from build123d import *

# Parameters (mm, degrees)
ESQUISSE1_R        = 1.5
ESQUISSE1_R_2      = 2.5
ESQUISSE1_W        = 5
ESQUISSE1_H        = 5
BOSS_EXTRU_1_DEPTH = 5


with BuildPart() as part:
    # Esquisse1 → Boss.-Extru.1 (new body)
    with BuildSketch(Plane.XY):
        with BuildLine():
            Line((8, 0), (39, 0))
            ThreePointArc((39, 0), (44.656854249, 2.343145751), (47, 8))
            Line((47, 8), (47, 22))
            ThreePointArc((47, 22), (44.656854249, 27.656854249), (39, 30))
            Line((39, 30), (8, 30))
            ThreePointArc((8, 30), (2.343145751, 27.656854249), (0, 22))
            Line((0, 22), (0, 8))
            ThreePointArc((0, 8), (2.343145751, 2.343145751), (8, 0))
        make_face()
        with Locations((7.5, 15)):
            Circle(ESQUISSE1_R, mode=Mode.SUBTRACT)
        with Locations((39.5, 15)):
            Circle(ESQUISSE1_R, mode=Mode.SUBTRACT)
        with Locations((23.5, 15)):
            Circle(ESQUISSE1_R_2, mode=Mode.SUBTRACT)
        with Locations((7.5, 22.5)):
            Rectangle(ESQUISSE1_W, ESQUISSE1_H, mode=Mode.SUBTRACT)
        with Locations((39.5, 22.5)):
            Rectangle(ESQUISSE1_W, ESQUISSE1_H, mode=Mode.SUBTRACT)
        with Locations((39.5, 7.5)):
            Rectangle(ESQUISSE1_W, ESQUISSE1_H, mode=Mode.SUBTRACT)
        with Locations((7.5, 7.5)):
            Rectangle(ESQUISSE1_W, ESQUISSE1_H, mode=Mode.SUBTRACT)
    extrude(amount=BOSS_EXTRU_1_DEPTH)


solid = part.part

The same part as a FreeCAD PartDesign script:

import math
import FreeCAD as App
import Part
import Sketcher
Q = App.Units.Quantity


def add_polygon(sketch, points):
    """Adds a closed chain of lines whose ends are joined by coincident constraints."""
    first, n = sketch.GeometryCount, len(points)
    for a, b in zip(points, points[1:] + points[:1]):
        sketch.addGeometry(Part.LineSegment(App.Vector(*a, 0), App.Vector(*b, 0)), False)
    for i in range(n):
        sketch.addConstraint(Sketcher.Constraint("Coincident", first + i, 2, first + (i + 1) % n, 1))

doc = App.newDocument("Part")
body = doc.addObject("PartDesign::Body", "Body")

sketch1 = body.newObject("Sketcher::SketchObject", "Sketch")
sketch1.AttachmentSupport = (doc.getObject("XY_Plane"), [""])
sketch1.MapMode = "FlatFace"
sketch1.addGeometry(Part.LineSegment(App.Vector(8, 0, 0), App.Vector(39, 0, 0)), False)
sketch1.addGeometry(Part.ArcOfCircle(Part.Circle(App.Vector(39, 8, 0), App.Vector(0, 0, 1), 8), math.radians(-90), math.radians(0)), False)
sketch1.addGeometry(Part.LineSegment(App.Vector(47, 8, 0), App.Vector(47, 22, 0)), False)
sketch1.addGeometry(Part.ArcOfCircle(Part.Circle(App.Vector(39, 22, 0), App.Vector(0, 0, 1), 8), math.radians(0), math.radians(90)), False)
sketch1.addGeometry(Part.LineSegment(App.Vector(39, 30, 0), App.Vector(8, 30, 0)), False)
sketch1.addGeometry(Part.ArcOfCircle(Part.Circle(App.Vector(8, 22, 0), App.Vector(0, 0, 1), 8), math.radians(90), math.radians(180)), False)
sketch1.addGeometry(Part.LineSegment(App.Vector(0, 22, 0), App.Vector(0, 8, 0)), False)
sketch1.addGeometry(Part.ArcOfCircle(Part.Circle(App.Vector(8, 8, 0), App.Vector(0, 0, 1), 8), math.radians(-180), math.radians(-90)), False)
add_polygon(sketch1, [(10, 5), (5, 5), (5, 10), (10, 10)])
add_polygon(sketch1, [(42, 5), (37, 5), (37, 10), (42, 10)])
sketch1.addGeometry(Part.Circle(App.Vector(7.5, 15, 0), App.Vector(0, 0, 1), 1.5), False)
add_polygon(sketch1, [(10, 20), (5, 20), (5, 25), (10, 25)])
sketch1.addGeometry(Part.Circle(App.Vector(23.5, 15, 0), App.Vector(0, 0, 1), 2.5), False)
sketch1.addGeometry(Part.Circle(App.Vector(39.5, 15, 0), App.Vector(0, 0, 1), 1.5), False)
add_polygon(sketch1, [(42, 20), (37, 20), (37, 25), (42, 25)])
sketch1.addConstraint(Sketcher.Constraint("Tangent", 0, 2, 1, 1))
sketch1.addConstraint(Sketcher.Constraint("Tangent", 1, 2, 2, 1))
sketch1.addConstraint(Sketcher.Constraint("Tangent", 2, 2, 3, 1))
sketch1.addConstraint(Sketcher.Constraint("Tangent", 3, 2, 4, 1))
sketch1.addConstraint(Sketcher.Constraint("Tangent", 4, 2, 5, 1))
sketch1.addConstraint(Sketcher.Constraint("Tangent", 5, 2, 6, 1))
sketch1.addConstraint(Sketcher.Constraint("Tangent", 6, 2, 7, 1))
sketch1.addConstraint(Sketcher.Constraint("Tangent", 7, 2, 0, 1))
sketch1.addConstraint(Sketcher.Constraint("Horizontal", 0))
sketch1.addConstraint(Sketcher.Constraint("Vertical", 2))
sketch1.addConstraint(Sketcher.Constraint("Horizontal", 4))
sketch1.addConstraint(Sketcher.Constraint("Vertical", 6))
sketch1.addConstraint(Sketcher.Constraint("Horizontal", 8))
sketch1.addConstraint(Sketcher.Constraint("Vertical", 9))
sketch1.addConstraint(Sketcher.Constraint("Horizontal", 10))
sketch1.addConstraint(Sketcher.Constraint("Vertical", 11))
sketch1.addConstraint(Sketcher.Constraint("Horizontal", 12))
sketch1.addConstraint(Sketcher.Constraint("Vertical", 13))
sketch1.addConstraint(Sketcher.Constraint("Horizontal", 14))
sketch1.addConstraint(Sketcher.Constraint("Vertical", 15))
sketch1.addConstraint(Sketcher.Constraint("Horizontal", 17))
sketch1.addConstraint(Sketcher.Constraint("Vertical", 18))
sketch1.addConstraint(Sketcher.Constraint("Horizontal", 19))
sketch1.addConstraint(Sketcher.Constraint("Vertical", 20))
sketch1.addConstraint(Sketcher.Constraint("Horizontal", 23))
sketch1.addConstraint(Sketcher.Constraint("Vertical", 24))
sketch1.addConstraint(Sketcher.Constraint("Horizontal", 25))
sketch1.addConstraint(Sketcher.Constraint("Vertical", 26))
sketch1.addConstraint(Sketcher.Constraint("Equal", 1, 3))
sketch1.addConstraint(Sketcher.Constraint("Equal", 3, 5))
sketch1.addConstraint(Sketcher.Constraint("Equal", 5, 7))
sketch1.addConstraint(Sketcher.Constraint("Equal", 16, 22))
sketch1.addConstraint(Sketcher.Constraint("PointOnObject", 0, 2, -1))
sketch1.addConstraint(Sketcher.Constraint("PointOnObject", 5, 2, -2))
sketch1.addConstraint(Sketcher.Constraint("Horizontal", 16, 3, 21, 3))
sketch1.addConstraint(Sketcher.Constraint("Horizontal", 21, 3, 22, 3))
sketch1.addConstraint(Sketcher.Constraint("Horizontal", 11, 2, 12, 2))
sketch1.addConstraint(Sketcher.Constraint("Horizontal", 10, 2, 13, 2))
sketch1.addConstraint(Sketcher.Constraint("Horizontal", 20, 2, 23, 2))
sketch1.addConstraint(Sketcher.Constraint("Horizontal", 19, 2, 24, 2))
sketch1.addConstraint(Sketcher.Constraint("Vertical", 9, 2, 17, 2))
sketch1.addConstraint(Sketcher.Constraint("Vertical", 11, 2, 19, 2))
sketch1.addConstraint(Sketcher.Constraint("Vertical", 13, 2, 23, 2))
sketch1.addConstraint(Sketcher.Constraint("Vertical", 15, 2, 25, 2))
sketch1.addConstraint(Sketcher.Constraint("Equal", 10, 12))
sketch1.addConstraint(Sketcher.Constraint("Equal", 25, 9))
sketch1.addConstraint(Sketcher.Constraint("Equal", 15, 18))
sketch1.addConstraint(Sketcher.Constraint("Diameter", 16, Q("3 mm")))
sketch1.addConstraint(Sketcher.Constraint("Diameter", 21, Q("5 mm")))
sketch1.addConstraint(Sketcher.Constraint("Radius", 1, Q("8 mm")))
sketch1.addConstraint(Sketcher.Constraint("DistanceX", 0, 1, 0, 2, Q("31 mm")))
sketch1.addConstraint(Sketcher.Constraint("DistanceX", 8, 2, 8, 1, Q("5 mm")))
sketch1.addConstraint(Sketcher.Constraint("DistanceY", 2, 1, 2, 2, Q("14 mm")))
sketch1.addConstraint(Sketcher.Constraint("DistanceY", -1, 1, 16, 3, Q("15 mm")))
sketch1.addConstraint(Sketcher.Constraint("DistanceX", -1, 1, 8, 2, Q("5 mm")))
sketch1.addConstraint(Sketcher.Constraint("DistanceY", -1, 1, 8, 2, Q("5 mm")))
sketch1.addConstraint(Sketcher.Constraint("DistanceX", -1, 1, 12, 2, Q("37 mm")))
sketch1.addConstraint(Sketcher.Constraint("DistanceY", -1, 1, 17, 2, Q("20 mm")))
sketch1.addConstraint(Sketcher.Constraint("DistanceX", 16, 3, 21, 3, Q("16 mm")))
sketch1.addConstraint(Sketcher.Constraint("DistanceX", 21, 3, 22, 3, Q("16 mm")))
sketch1.addConstraint(Sketcher.Constraint("DistanceX", -1, 1, 16, 3, Q("7.5 mm")))
pad1 = body.newObject("PartDesign::Pad", "Pad")
pad1.Profile = sketch1
pad1.Length = 5

doc.recompute()
